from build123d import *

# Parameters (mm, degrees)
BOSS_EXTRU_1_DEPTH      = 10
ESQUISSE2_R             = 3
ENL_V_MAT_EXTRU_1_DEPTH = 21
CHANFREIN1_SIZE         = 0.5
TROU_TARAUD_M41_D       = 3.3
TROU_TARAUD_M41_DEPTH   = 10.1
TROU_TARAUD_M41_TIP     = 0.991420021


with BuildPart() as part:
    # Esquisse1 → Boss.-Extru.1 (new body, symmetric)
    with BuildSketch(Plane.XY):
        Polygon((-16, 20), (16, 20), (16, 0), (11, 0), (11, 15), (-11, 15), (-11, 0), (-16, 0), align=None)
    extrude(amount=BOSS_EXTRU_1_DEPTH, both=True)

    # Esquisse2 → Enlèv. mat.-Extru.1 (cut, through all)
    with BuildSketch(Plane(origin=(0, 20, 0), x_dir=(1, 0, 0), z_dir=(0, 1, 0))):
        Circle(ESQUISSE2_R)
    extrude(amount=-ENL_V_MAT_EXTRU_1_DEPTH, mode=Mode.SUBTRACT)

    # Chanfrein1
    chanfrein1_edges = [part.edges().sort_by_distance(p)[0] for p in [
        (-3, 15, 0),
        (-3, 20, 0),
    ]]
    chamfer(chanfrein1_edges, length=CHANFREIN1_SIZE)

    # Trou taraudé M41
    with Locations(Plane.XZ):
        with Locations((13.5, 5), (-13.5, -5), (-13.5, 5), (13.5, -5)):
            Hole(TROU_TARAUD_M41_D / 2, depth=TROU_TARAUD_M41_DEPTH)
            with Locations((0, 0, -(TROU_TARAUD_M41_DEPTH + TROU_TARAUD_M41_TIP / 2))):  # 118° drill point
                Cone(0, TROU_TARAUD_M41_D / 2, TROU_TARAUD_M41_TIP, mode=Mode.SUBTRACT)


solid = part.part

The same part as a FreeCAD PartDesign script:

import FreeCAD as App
import Part
import Sketcher

V = App.Vector
Q = App.Units.Quantity


def edges_at(feature, points):
    """Names of the edges that pass closest to the given points."""
    edges = feature.Shape.Edges
    near = lambda p: min(range(len(edges)), key=lambda i: edges[i].distToShape(Part.Vertex(*p))[0])
    return sorted({f"Edge{near(p) + 1}" for p in points})

doc = App.newDocument("Part")
body = doc.addObject("PartDesign::Body", "Body")

sketch1 = body.newObject("Sketcher::SketchObject", "Sketch")
sketch1.AttachmentSupport = (doc.getObject("XY_Plane"), [""])
sketch1.MapMode = "FlatFace"
sketch1.addGeometry(Part.LineSegment(V(16, 20, 0), V(-16, 20, 0)), False)
sketch1.addGeometry(Part.LineSegment(V(-16, 20, 0), V(-16, 0, 0)), False)
sketch1.addGeometry(Part.LineSegment(V(-16, 0, 0), V(-11, 0, 0)), False)
sketch1.addGeometry(Part.LineSegment(V(-11, 0, 0), V(-11, 15, 0)), False)
sketch1.addGeometry(Part.LineSegment(V(-11, 15, 0), V(11, 15, 0)), False)
sketch1.addGeometry(Part.LineSegment(V(11, 15, 0), V(11, 0, 0)), False)
sketch1.addGeometry(Part.LineSegment(V(11, 0, 0), V(16, 0, 0)), False)
sketch1.addGeometry(Part.LineSegment(V(16, 0, 0), V(16, 20, 0)), False)
sketch1.addConstraint(Sketcher.Constraint("Coincident", 0, 2, 1, 1))
sketch1.addConstraint(Sketcher.Constraint("Coincident", 1, 2, 2, 1))
sketch1.addConstraint(Sketcher.Constraint("Coincident", 2, 2, 3, 1))
sketch1.addConstraint(Sketcher.Constraint("Coincident", 3, 2, 4, 1))
sketch1.addConstraint(Sketcher.Constraint("Coincident", 4, 2, 5, 1))
sketch1.addConstraint(Sketcher.Constraint("Coincident", 5, 2, 6, 1))
sketch1.addConstraint(Sketcher.Constraint("Coincident", 6, 2, 7, 1))
sketch1.addConstraint(Sketcher.Constraint("Coincident", 7, 2, 0, 1))
sketch1.addConstraint(Sketcher.Constraint("Horizontal", 0))
sketch1.addConstraint(Sketcher.Constraint("Vertical", 1))
sketch1.addConstraint(Sketcher.Constraint("Horizontal", 2))
sketch1.addConstraint(Sketcher.Constraint("Vertical", 3))
sketch1.addConstraint(Sketcher.Constraint("Horizontal", 4))
sketch1.addConstraint(Sketcher.Constraint("Vertical", 5))
sketch1.addConstraint(Sketcher.Constraint("Horizontal", 6))
sketch1.addConstraint(Sketcher.Constraint("Vertical", 7))
sketch1.addConstraint(Sketcher.Constraint("Symmetric", 2, 2, 5, 2, -1, 1))
sketch1.addConstraint(Sketcher.Constraint("Symmetric", 1, 2, 6, 2, -2))
sketch1.addConstraint(Sketcher.Constraint("DistanceX", 0, 2, 0, 1, Q("32 mm")))
sketch1.addConstraint(Sketcher.Constraint("DistanceX", 2, 1, 2, 2, Q("5 mm")))
sketch1.addConstraint(Sketcher.Constraint("DistanceY", 1, 2, 1, 1, Q("20 mm")))
sketch1.addConstraint(Sketcher.Constraint("DistanceY", 3, 1, 3, 2, Q("15 mm")))
pad1 = body.newObject("PartDesign::Pad", "Pad")
pad1.Profile = sketch1
pad1.Length = 20
pad1.Midplane = True

sketch2 = body.newObject("Sketcher::SketchObject", "Sketch001")
sketch2.AttachmentSupport = (doc.getObject("XZ_Plane"), [""])
sketch2.MapMode = "FlatFace"
sketch2.AttachmentOffset = App.Placement(V(0, 0, -20), App.Rotation())
sketch2.addGeometry(Part.Circle(V(0, 0, 0), V(0, 0, 1), 3), False)
sketch2.addConstraint(Sketcher.Constraint("Coincident", 0, 3, -1, 1))
sketch2.addConstraint(Sketcher.Constraint("Diameter", 0, Q("6 mm")))
pocket1 = body.newObject("PartDesign::Pocket", "Pocket")
pocket1.Profile = sketch2
pocket1.Type = "ThroughAll"
pocket1.Reversed = True
doc.recompute()

chamfer = body.newObject("PartDesign::Chamfer", "Chamfer")
chamfer.Base = (pocket1, edges_at(pocket1, [(-3, 15, 0), (-3, 20, 0)]))
chamfer.Size = 0.5

sketch3 = body.newObject("Sketcher::SketchObject", "Sketch002")
sketch3.AttachmentSupport = (doc.getObject("XZ_Plane"), [""])
sketch3.MapMode = "FlatFace"
sketch3.addGeometry(Part.Circle(V(13.5, 5, 0), V(0, 0, 1), 1.65), False)
sketch3.addGeometry(Part.Circle(V(-13.5, -5, 0), V(0, 0, 1), 1.65), False)
sketch3.addGeometry(Part.Circle(V(-13.5, 5, 0), V(0, 0, 1), 1.65), False)
sketch3.addGeometry(Part.Circle(V(13.5, -5, 0), V(0, 0, 1), 1.65), False)
sketch3.addConstraint(Sketcher.Constraint("Equal", 0, 1))
sketch3.addConstraint(Sketcher.Constraint("Equal", 1, 2))
sketch3.addConstraint(Sketcher.Constraint("Equal", 2, 3))
sketch3.addConstraint(Sketcher.Constraint("Symmetric", 0, 3, 1, 3, -1, 1))
sketch3.addConstraint(Sketcher.Constraint("Symmetric", 2, 3, 3, 3, -1, 1))
sketch3.addConstraint(Sketcher.Constraint("Symmetric", 0, 3, 2, 3, -2))
sketch3.addConstraint(Sketcher.Constraint("Diameter", 0, Q("3.3 mm")))
sketch3.addConstraint(Sketcher.Constraint("DistanceY", -1, 1, 0, 3, Q("5 mm")))
sketch3.addConstraint(Sketcher.Constraint("DistanceX", 1, 3, 0, 3, Q("27 mm")))
doc.recompute()
hole = body.newObject("PartDesign::Hole", "Hole")
hole.Profile = sketch3
hole.ThreadType = "None"
hole.Diameter = 3.3
hole.DepthType = "Dimension"
hole.Depth = 10.1
hole.DrillPoint = "Angled"
hole.DrillPointAngle = 118

doc.recompute()
